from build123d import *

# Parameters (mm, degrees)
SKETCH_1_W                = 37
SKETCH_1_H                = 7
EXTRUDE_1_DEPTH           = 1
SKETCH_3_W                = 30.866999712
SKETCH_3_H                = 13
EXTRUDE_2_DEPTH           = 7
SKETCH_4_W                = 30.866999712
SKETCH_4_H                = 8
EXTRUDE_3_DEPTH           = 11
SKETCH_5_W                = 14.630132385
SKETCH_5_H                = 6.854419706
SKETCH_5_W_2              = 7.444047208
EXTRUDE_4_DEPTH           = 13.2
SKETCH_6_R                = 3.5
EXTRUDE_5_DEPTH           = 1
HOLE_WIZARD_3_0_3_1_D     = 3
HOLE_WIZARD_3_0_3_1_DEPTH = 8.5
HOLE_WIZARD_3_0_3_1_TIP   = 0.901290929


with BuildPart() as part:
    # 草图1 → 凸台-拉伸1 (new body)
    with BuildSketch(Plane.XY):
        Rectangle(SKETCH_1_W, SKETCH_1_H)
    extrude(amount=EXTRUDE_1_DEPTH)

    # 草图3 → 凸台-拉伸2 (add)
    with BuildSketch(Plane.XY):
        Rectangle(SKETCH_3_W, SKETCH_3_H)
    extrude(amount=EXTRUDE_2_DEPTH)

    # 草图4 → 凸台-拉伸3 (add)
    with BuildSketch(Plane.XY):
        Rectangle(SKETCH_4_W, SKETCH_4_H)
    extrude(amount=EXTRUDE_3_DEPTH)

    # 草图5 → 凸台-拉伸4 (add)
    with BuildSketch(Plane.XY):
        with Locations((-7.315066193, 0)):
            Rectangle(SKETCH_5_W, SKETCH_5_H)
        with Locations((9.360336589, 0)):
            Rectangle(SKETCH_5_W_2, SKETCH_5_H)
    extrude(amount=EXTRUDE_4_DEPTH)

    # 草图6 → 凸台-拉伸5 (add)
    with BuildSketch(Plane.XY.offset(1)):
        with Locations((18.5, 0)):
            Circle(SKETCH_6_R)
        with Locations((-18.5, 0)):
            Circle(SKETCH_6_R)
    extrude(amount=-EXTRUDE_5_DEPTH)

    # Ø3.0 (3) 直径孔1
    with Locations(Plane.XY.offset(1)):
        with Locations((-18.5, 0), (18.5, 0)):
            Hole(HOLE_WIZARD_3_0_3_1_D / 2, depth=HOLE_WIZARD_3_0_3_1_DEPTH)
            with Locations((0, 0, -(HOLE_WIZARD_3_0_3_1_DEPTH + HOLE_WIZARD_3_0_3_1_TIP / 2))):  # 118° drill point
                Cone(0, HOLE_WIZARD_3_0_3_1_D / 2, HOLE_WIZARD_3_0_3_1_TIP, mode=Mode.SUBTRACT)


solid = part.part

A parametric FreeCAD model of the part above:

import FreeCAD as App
import Part
import Sketcher
Q = App.Units.Quantity


def add_polygon(sketch, points):
    """Adds a closed chain of lines whose ends are joined by coincident constraints."""
    first, n = sketch.GeometryCount, len(points)
    for a, b in zip(points, points[1:] + points[:1]):
        sketch.addGeometry(Part.LineSegment(App.Vector(*a, 0), App.Vector(*b, 0)), False)
    for i in range(n):
        sketch.addConstraint(Sketcher.Constraint("Coincident", first + i, 2, first + (i + 1) % n, 1))

doc = App.newDocument("Part")
body = doc.addObject("PartDesign::Body", "Body")

# Sketch on XY plane
sketch1 = body.newObject("Sketcher::SketchObject", "Sketch")
sketch1.AttachmentSupport = (doc.getObject("XY_Plane"), [""])
sketch1.MapMode = "FlatFace"
add_polygon(sketch1, [(-18, 4), (-18, -4), (18, -4), (18, 4)])  # lines 0-3
sketch1.addConstraint([
    Sketcher.Constraint("Vertical", 0),
    Sketcher.Constraint("Horizontal", 1),
    Sketcher.Constraint("Vertical", 2),
    Sketcher.Constraint("Horizontal", 3),
    Sketcher.Constraint("Symmetric", 0, 2, 2, 2, -1, 1),
    Sketcher.Constraint("DistanceX", 1, 1, 1, 2, Q("37 mm")),
    Sketcher.Constraint("DistanceY", 0, 2, 0, 1, Q("7 mm")),
])
pad1 = body.newObject("PartDesign::Pad", "Pad")
pad1.Profile = sketch1
pad1.Length = 1

# Sketch on XY plane
sketch2 = body.newObject("Sketcher::SketchObject", "Sketch001")
sketch2.AttachmentSupport = (doc.getObject("XY_Plane"), [""])
sketch2.MapMode = "FlatFace"
add_polygon(sketch2, [(-15, 6), (-15, -6), (15, -6), (15, 6)])  # lines 0-3
sketch2.addConstraint([
    Sketcher.Constraint("Vertical", 0),
    Sketcher.Constraint("Horizontal", 1),
    Sketcher.Constraint("Vertical", 2),
    Sketcher.Constraint("Horizontal", 3),
    Sketcher.Constraint("Symmetric", 0, 2, 2, 2, -1, 1),
    Sketcher.Constraint("DistanceY", 0, 2, 0, 1, Q("13 mm")),
    Sketcher.Constraint("DistanceX", 1, 1, 1, 2, Q("30.867 mm")),
])
pad2 = body.newObject("PartDesign::Pad", "Pad001")
pad2.Profile = sketch2
pad2.Length = 7

# Sketch on XY plane
sketch3 = body.newObject("Sketcher::SketchObject", "Sketch002")
sketch3.AttachmentSupport = (doc.getObject("XY_Plane"), [""])
sketch3.MapMode = "FlatFace"
add_polygon(sketch3, [(-15, 4), (-15, -4), (15, -4), (15, 4)])  # lines 0-3
sketch3.addConstraint([
    Sketcher.Constraint("Vertical", 0),
    Sketcher.Constraint("Horizontal", 1),
    Sketcher.Constraint("Vertical", 2),
    Sketcher.Constraint("Horizontal", 3),
    Sketcher.Constraint("Symmetric", 0, 2, 2, 2, -1, 1),
    Sketcher.Constraint("DistanceY", 0, 2, 0, 1, Q("8 mm")),
    Sketcher.Constraint("DistanceX", 1, 1, 1, 2, Q("30.867 mm")),
])
pad3 = body.newObject("PartDesign::Pad", "Pad002")
pad3.Profile = sketch3
pad3.Length = 11

# Sketch on XY plane
sketch4 = body.newObject("Sketcher::SketchObject", "Sketch003")
sketch4.AttachmentSupport = (doc.getObject("XY_Plane"), [""])
sketch4.MapMode = "FlatFace"
add_polygon(sketch4, [(-15, 3), (-15, -3), (0, -3), (0, 3)])  # lines 0-3
add_polygon(sketch4, [(6, 3), (6, -3), (13, -3), (13, 3)])  # lines 4-7
sketch4.addConstraint([
    Sketcher.Constraint("Vertical", 0),
    Sketcher.Constraint("Horizontal", 1),
    Sketcher.Constraint("Vertical", 2),
    Sketcher.Constraint("Horizontal", 3),
    Sketcher.Constraint("Vertical", 4),
    Sketcher.Constraint("Horizontal", 5),
    Sketcher.Constraint("Vertical", 6),
    Sketcher.Constraint("Horizontal", 7),
    Sketcher.Constraint("Symmetric", 1, 2, 2, 2, -1, 1),
    Sketcher.Constraint("Horizontal", 1, 2, 4, 2),
    Sketcher.Constraint("Horizontal", 3, 2, 6, 2),
    Sketcher.Constraint("DistanceY", 0, 2, 0, 1, Q("6.85442 mm")),
    Sketcher.Constraint("DistanceX", 1, 1, 1, 2, Q("14.630132 mm")),
    Sketcher.Constraint("DistanceX", 5, 1, 5, 2, Q("7.444047 mm")),
    Sketcher.Constraint("DistanceX", -1, 1, 5, 2, Q("13.08236 mm")),
])
pad4 = body.newObject("PartDesign::Pad", "Pad003")
pad4.Profile = sketch4
pad4.Length = 13.2

# Sketch on XY plane
sketch5 = body.newObject("Sketcher::SketchObject", "Sketch004")
sketch5.AttachmentSupport = (doc.getObject("XY_Plane"), [""])
sketch5.MapMode = "FlatFace"
sketch5.AttachmentOffset = App.Placement(App.Vector(0, 0, 1), App.Rotation())
sketch5.addGeometry([
    Part.Circle(App.Vector(18.5, 0, 0), App.Vector(0, 0, 1), 3.5),
    Part.Circle(App.Vector(-18.5, 0, 0), App.Vector(0, 0, 1), 3.5),
], False)
sketch5.addConstraint([
    Sketcher.Constraint("Equal", 0, 1),
    Sketcher.Constraint("Symmetric", 0, 3, 1, 3, -1, 1),
    Sketcher.Constraint("PointOnObject", 0, 3, -1),
    Sketcher.Constraint("Diameter", 0, Q("7 mm")),
    Sketcher.Constraint("DistanceX", 1, 3, 0, 3, Q("37 mm")),
])
pad5 = body.newObject("PartDesign::Pad", "Pad004")
pad5.Profile = sketch5
pad5.Length = 1
pad5.Reversed = True

# Sketch on XY plane
sketch6 = body.newObject("Sketcher::SketchObject", "Sketch005")
sketch6.AttachmentSupport = (doc.getObject("XY_Plane"), [""])
sketch6.MapMode = "FlatFace"
sketch6.AttachmentOffset = App.Placement(App.Vector(0, 0, 1), App.Rotation())
sketch6.addGeometry([
    Part.Circle(App.Vector(-18.5, 0, 0), App.Vector(0, 0, 1), 1.5),
    Part.Circle(App.Vector(18.5, 0, 0), App.Vector(0, 0, 1), 1.5),
], False)
sketch6.addConstraint([
    Sketcher.Constraint("Equal", 0, 1),
    Sketcher.Constraint("Symmetric", 0, 3, 1, 3, -1, 1),
    Sketcher.Constraint("PointOnObject", 0, 3, -1),
    Sketcher.Constraint("Diameter", 0, Q("3 mm")),
    Sketcher.Constraint("DistanceX", 0, 3, 1, 3, Q("37 mm")),
])
doc.recompute()
hole = body.newObject("PartDesign::Hole", "Hole")
hole.Profile = sketch6
hole.ThreadType = "None"
hole.Diameter = 3
hole.DepthType = "Dimension"
hole.Depth = 8.5
hole.DrillPoint = "Angled"
hole.DrillPointAngle = 118

doc.recompute()
